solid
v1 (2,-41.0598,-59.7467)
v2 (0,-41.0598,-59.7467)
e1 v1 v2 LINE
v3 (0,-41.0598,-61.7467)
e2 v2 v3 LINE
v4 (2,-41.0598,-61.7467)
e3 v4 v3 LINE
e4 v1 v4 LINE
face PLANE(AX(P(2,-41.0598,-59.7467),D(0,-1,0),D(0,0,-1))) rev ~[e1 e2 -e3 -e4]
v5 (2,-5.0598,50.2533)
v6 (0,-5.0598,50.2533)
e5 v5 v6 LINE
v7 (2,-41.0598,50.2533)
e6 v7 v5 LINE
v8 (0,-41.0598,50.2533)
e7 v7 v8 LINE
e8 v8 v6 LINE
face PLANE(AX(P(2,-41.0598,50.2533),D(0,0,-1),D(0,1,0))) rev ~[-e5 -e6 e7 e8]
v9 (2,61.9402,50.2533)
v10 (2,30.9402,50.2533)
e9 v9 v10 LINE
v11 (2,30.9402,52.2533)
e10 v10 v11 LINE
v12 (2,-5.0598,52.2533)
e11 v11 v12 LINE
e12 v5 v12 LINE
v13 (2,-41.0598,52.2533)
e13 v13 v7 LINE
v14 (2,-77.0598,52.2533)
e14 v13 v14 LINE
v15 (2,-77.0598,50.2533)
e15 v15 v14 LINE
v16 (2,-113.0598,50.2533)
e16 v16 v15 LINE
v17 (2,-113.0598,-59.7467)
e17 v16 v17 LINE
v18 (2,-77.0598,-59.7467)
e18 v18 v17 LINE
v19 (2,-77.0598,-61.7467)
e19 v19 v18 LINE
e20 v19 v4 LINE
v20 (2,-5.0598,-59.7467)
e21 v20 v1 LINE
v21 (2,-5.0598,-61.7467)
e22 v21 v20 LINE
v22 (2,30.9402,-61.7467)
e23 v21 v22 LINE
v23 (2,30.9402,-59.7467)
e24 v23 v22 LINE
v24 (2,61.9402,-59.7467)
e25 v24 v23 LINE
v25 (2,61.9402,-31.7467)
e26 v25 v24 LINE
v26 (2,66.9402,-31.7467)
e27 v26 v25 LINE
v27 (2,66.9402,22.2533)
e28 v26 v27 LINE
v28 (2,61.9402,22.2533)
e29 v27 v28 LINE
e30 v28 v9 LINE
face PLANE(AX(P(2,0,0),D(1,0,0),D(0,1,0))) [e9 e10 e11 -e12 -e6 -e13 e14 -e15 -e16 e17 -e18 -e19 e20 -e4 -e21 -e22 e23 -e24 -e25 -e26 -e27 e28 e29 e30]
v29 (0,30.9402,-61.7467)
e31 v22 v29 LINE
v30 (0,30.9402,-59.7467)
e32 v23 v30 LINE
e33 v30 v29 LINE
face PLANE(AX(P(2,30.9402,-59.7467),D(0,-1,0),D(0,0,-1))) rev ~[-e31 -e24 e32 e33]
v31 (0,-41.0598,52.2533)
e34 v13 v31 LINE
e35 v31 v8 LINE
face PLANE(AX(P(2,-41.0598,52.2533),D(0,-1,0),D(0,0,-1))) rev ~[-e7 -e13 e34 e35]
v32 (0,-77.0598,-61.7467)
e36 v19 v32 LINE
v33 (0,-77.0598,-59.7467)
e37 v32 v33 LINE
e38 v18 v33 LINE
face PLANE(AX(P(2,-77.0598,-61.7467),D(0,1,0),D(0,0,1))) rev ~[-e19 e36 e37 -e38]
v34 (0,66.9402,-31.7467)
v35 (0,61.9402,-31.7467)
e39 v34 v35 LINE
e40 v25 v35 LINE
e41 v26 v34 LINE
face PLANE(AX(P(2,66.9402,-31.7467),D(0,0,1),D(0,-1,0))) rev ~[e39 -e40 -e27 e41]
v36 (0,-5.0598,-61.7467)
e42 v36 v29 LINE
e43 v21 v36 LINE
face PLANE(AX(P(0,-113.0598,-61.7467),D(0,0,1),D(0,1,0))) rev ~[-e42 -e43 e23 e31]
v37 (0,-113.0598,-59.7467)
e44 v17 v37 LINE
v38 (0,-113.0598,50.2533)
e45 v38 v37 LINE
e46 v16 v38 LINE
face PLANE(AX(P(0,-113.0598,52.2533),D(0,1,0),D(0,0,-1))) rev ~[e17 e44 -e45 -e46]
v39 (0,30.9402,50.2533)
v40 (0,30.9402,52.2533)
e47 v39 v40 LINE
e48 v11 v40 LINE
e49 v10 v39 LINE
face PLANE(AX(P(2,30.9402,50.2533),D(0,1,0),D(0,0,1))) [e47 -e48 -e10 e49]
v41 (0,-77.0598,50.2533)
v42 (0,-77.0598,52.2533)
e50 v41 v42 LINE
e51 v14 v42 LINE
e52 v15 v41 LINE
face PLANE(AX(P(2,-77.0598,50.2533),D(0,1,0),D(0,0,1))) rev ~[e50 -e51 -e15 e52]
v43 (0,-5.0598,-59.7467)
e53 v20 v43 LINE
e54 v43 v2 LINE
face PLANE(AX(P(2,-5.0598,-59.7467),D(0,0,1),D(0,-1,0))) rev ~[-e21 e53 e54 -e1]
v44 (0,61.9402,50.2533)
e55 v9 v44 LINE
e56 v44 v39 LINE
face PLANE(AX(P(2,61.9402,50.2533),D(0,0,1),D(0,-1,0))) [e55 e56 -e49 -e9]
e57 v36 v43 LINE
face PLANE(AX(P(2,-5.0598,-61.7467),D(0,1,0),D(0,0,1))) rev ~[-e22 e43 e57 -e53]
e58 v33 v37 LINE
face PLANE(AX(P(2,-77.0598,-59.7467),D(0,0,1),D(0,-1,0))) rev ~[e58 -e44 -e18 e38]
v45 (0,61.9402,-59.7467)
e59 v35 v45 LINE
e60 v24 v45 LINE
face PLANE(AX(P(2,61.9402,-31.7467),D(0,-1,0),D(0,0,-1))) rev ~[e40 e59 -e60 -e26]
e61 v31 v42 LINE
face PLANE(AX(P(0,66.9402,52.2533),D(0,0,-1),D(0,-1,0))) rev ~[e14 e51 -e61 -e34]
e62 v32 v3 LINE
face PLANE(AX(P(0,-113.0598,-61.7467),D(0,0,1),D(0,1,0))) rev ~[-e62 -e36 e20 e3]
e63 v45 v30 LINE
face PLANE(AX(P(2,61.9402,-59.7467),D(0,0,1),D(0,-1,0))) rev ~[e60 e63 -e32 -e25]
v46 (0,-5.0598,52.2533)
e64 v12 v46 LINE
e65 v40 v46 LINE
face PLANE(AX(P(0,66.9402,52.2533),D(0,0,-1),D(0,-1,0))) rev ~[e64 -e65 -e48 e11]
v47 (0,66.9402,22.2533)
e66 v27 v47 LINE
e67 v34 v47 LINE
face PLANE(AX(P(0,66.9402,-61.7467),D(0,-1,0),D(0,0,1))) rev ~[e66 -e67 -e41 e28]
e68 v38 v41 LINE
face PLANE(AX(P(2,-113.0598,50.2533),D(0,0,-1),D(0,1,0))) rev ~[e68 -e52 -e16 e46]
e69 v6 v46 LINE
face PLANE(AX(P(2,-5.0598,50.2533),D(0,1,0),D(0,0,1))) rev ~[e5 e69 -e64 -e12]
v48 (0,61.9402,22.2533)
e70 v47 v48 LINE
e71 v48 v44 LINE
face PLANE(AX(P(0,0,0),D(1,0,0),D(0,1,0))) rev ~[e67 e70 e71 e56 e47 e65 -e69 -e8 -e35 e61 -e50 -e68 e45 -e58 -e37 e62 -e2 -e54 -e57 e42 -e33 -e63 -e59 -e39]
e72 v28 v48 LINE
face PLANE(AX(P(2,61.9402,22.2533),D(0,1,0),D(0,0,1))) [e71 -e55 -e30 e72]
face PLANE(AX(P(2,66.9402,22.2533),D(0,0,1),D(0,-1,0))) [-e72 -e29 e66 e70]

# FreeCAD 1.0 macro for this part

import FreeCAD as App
import Part
import Sketcher
from FreeCAD import Vector

doc = App.newDocument("Part")
body = doc.addObject("PartDesign::Body", "Body")

sketch1 = body.newObject("Sketcher::SketchObject", "Sketch")
sketch1.AttachmentSupport = (doc.getObject("YZ_Plane"), [""])
sketch1.MapMode = "FlatFace"
sketch1.addGeometry([
    Part.LineSegment(Vector(67, -62, 0), Vector(67, 52, 0)),
    Part.LineSegment(Vector(67, 52, 0), Vector(-113, 52, 0)),
    Part.LineSegment(Vector(-113, 52, 0), Vector(-113, -62, 0)),
    Part.LineSegment(Vector(-113, -62, 0), Vector(67, -62, 0)),
], False)
sketch1.addConstraint([
    Sketcher.Constraint("Coincident", 0, 2, 1, 1),
    Sketcher.Constraint("Coincident", 1, 2, 2, 1),
    Sketcher.Constraint("Coincident", 2, 2, 3, 1),
    Sketcher.Constraint("Coincident", 3, 2, 0, 1),
    Sketcher.Constraint("Vertical", 0),
    Sketcher.Constraint("Horizontal", 1),
    Sketcher.Constraint("Vertical", 2),
    Sketcher.Constraint("Horizontal", 3),
    Sketcher.Constraint("DistanceX", 1, 2, 1, 1, 180.0),
    Sketcher.Constraint("DistanceY", 0, 1, 0, 2, 114.0),
    Sketcher.Constraint("DistanceX", -1, 1, 0, 2, 66.9402),
    Sketcher.Constraint("DistanceY", -1, 1, 0, 2, 52.2533),
])
pad1 = body.newObject("PartDesign::Pad", "Pad")
pad1.Profile = sketch1
pad1.Length = 2

sketch2 = body.newObject("Sketcher::SketchObject", "Sketch001")
sketch2.AttachmentSupport = (doc.getObject("YZ_Plane"), [""])
sketch2.MapMode = "FlatFace"
sketch2.AttachmentOffset = App.Placement(Vector(0, 0, 2), App.Rotation())
sketch2.addGeometry([
    Part.LineSegment(Vector(62, -62, 0), Vector(67, -62, 0)),
    Part.LineSegment(Vector(67, -62, 0), Vector(67, -32, 0)),
    Part.LineSegment(Vector(67, -32, 0), Vector(62, -32, 0)),
    Part.LineSegment(Vector(62, -32, 0), Vector(62, -62, 0)),
    Part.LineSegment(Vector(62, 22, 0), Vector(67, 22, 0)),
    Part.LineSegment(Vector(67, 22, 0), Vector(67, 52, 0)),
    Part.LineSegment(Vector(67, 52, 0), Vector(62, 52, 0)),
    Part.LineSegment(Vector(62, 52, 0), Vector(62, 22, 0)),
], False)
sketch2.addConstraint([
    Sketcher.Constraint("Coincident", 0, 2, 1, 1),
    Sketcher.Constraint("Coincident", 1, 2, 2, 1),
    Sketcher.Constraint("Coincident", 2, 2, 3, 1),
    Sketcher.Constraint("Coincident", 3, 2, 0, 1),
    Sketcher.Constraint("Coincident", 4, 2, 5, 1),
    Sketcher.Constraint("Coincident", 5, 2, 6, 1),
    Sketcher.Constraint("Coincident", 6, 2, 7, 1),
    Sketcher.Constraint("Coincident", 7, 2, 4, 1),
    Sketcher.Constraint("Horizontal", 0),
    Sketcher.Constraint("Vertical", 1),
    Sketcher.Constraint("Horizontal", 2),
    Sketcher.Constraint("Vertical", 3),
    Sketcher.Constraint("Horizontal", 4),
    Sketcher.Constraint("Vertical", 5),
    Sketcher.Constraint("Horizontal", 6),
    Sketcher.Constraint("Vertical", 7),
    Sketcher.Constraint("Vertical", 1, 2, 4, 2),
    Sketcher.Constraint("Vertical", 3, 2, 6, 2),
    Sketcher.Constraint("Equal", 3, 5),
    Sketcher.Constraint("DistanceX", 0, 1, 0, 2, 5.0),
    Sketcher.Constraint("DistanceY", 1, 1, 1, 2, 30.0),
    Sketcher.Constraint("DistanceY", 1, 2, 4, 2, 54.0),
    Sketcher.Constraint("DistanceX", -1, 1, 0, 2, 66.9402),
    Sketcher.Constraint("DistanceY", 0, 2, -1, 1, 61.7467),
])
pocket1 = body.newObject("PartDesign::Pocket", "Pocket")
pocket1.Profile = sketch2
pocket1.Length = 2

sketch3 = body.newObject("Sketcher::SketchObject", "Sketch002")
sketch3.AttachmentSupport = (doc.getObject("YZ_Plane"), [""])
sketch3.MapMode = "FlatFace"
sketch3.AttachmentOffset = App.Placement(Vector(0, 0, 2), App.Rotation())
sketch3.addGeometry([
    Part.LineSegment(Vector(61.9, 50.3, 0), Vector(61.9, 52.3, 0)),
    Part.LineSegment(Vector(61.9, 52.3, 0), Vector(30.9, 52.3, 0)),
    Part.LineSegment(Vector(30.9, 52.3, 0), Vector(30.9, 50.3, 0)),
    Part.LineSegment(Vector(30.9, 50.3, 0), Vector(61.9, 50.3, 0)),
    Part.LineSegment(Vector(30.9, -59.7, 0), Vector(30.9, -61.7, 0)),
    Part.LineSegment(Vector(30.9, -61.7, 0), Vector(61.9, -61.7, 0)),
    Part.LineSegment(Vector(61.9, -61.7, 0), Vector(61.9, -59.7, 0)),
    Part.LineSegment(Vector(61.9, -59.7, 0), Vector(30.9, -59.7, 0)),
    Part.LineSegment(Vector(-41.1, -59.7, 0), Vector(-41.1, -61.7, 0)),
    Part.LineSegment(Vector(-41.1, -61.7, 0), Vector(-5.1, -61.7, 0)),
    Part.LineSegment(Vector(-5.1, -61.7, 0), Vector(-5.1, -59.7, 0)),
    Part.LineSegment(Vector(-5.1, -59.7, 0), Vector(-41.1, -59.7, 0)),
    Part.LineSegment(Vector(-77.1, -59.7, 0), Vector(-113.1, -59.7, 0)),
    Part.LineSegment(Vector(-113.1, -59.7, 0), Vector(-113.1, -61.7, 0)),
    Part.LineSegment(Vector(-113.1, -61.7, 0), Vector(-77.1, -61.7, 0)),
    Part.LineSegment(Vector(-77.1, -61.7, 0), Vector(-77.1, -59.7, 0)),
    Part.LineSegment(Vector(-77.1, 50.3, 0), Vector(-77.1, 52.3, 0)),
    Part.LineSegment(Vector(-77.1, 52.3, 0), Vector(-113.1, 52.3, 0)),
    Part.LineSegment(Vector(-113.1, 52.3, 0), Vector(-113.1, 50.3, 0)),
    Part.LineSegment(Vector(-113.1, 50.3, 0), Vector(-77.1, 50.3, 0)),
    Part.LineSegment(Vector(-5.1, 50.3, 0), Vector(-5.1, 52.3, 0)),
    Part.LineSegment(Vector(-5.1, 52.3, 0), Vector(-41.1, 52.3, 0)),
    Part.LineSegment(Vector(-41.1, 52.3, 0), Vector(-41.1, 50.3, 0)),
    Part.LineSegment(Vector(-41.1, 50.3, 0), Vector(-5.1, 50.3, 0)),
], False)
sketch3.addConstraint([
    Sketcher.Constraint("Coincident", 0, 2, 1, 1),
    Sketcher.Constraint("Coincident", 1, 2, 2, 1),
    Sketcher.Constraint("Coincident", 2, 2, 3, 1),
    Sketcher.Constraint("Coincident", 3, 2, 0, 1),
    Sketcher.Constraint("Coincident", 4, 2, 5, 1),
    Sketcher.Constraint("Coincident", 5, 2, 6, 1),
    Sketcher.Constraint("Coincident", 6, 2, 7, 1),
    Sketcher.Constraint("Coincident", 7, 2, 4, 1),
    Sketcher.Constraint("Coincident", 8, 2, 9, 1),
    Sketcher.Constraint("Coincident", 9, 2, 10, 1),
    Sketcher.Constraint("Coincident", 10, 2, 11, 1),
    Sketcher.Constraint("Coincident", 11, 2, 8, 1),
    Sketcher.Constraint("Coincident", 12, 2, 13, 1),
    Sketcher.Constraint("Coincident", 13, 2, 14, 1),
    Sketcher.Constraint("Coincident", 14, 2, 15, 1),
    Sketcher.Constraint("Coincident", 15, 2, 12, 1),
    Sketcher.Constraint("Coincident", 16, 2, 17, 1),
    Sketcher.Constraint("Coincident", 17, 2, 18, 1),
    Sketcher.Constraint("Coincident", 18, 2, 19, 1),
    Sketcher.Constraint("Coincident", 19, 2, 16, 1),
    Sketcher.Constraint("Coincident", 20, 2, 21, 1),
    Sketcher.Constraint("Coincident", 21, 2, 22, 1),
    Sketcher.Constraint("Coincident", 22, 2, 23, 1),
    Sketcher.Constraint("Coincident", 23, 2, 20, 1),
    Sketcher.Constraint("Vertical", 0),
    Sketcher.Constraint("Horizontal", 1),
    Sketcher.Constraint("Vertical", 2),
    Sketcher.Constraint("Horizontal", 3),
    Sketcher.Constraint("Vertical", 4),
    Sketcher.Constraint("Horizontal", 5),
    Sketcher.Constraint("Vertical", 6),
    Sketcher.Constraint("Horizontal", 7),
    Sketcher.Constraint("Vertical", 8),
    Sketcher.Constraint("Horizontal", 9),
    Sketcher.Constraint("Vertical", 10),
    Sketcher.Constraint("Horizontal", 11),
    Sketcher.Constraint("Horizontal", 12),
    Sketcher.Constraint("Vertical", 13),
    Sketcher.Constraint("Horizontal", 14),
    Sketcher.Constraint("Vertical", 15),
    Sketcher.Constraint("Vertical", 16),
    Sketcher.Constraint("Horizontal", 17),
    Sketcher.Constraint("Vertical", 18),
    Sketcher.Constraint("Horizontal", 19),
    Sketcher.Constraint("Vertical", 20),
    Sketcher.Constraint("Horizontal", 21),
    Sketcher.Constraint("Vertical", 22),
    Sketcher.Constraint("Horizontal", 23),
    Sketcher.Constraint("Horizontal", 5, 2, 8, 2),
    Sketcher.Constraint("Horizontal", 7, 2, 10, 2),
    Sketcher.Constraint("Horizontal", 11, 2, 12, 2),
    Sketcher.Constraint("Horizontal", 9, 2, 13, 2),
    Sketcher.Constraint("Horizontal", 1, 2, 16, 2),
    Sketcher.Constraint("Horizontal", 3, 2, 18, 2),
    Sketcher.Constraint("Horizontal", 17, 2, 20, 2),
    Sketcher.Constraint("Horizontal", 19, 2, 22, 2),
    Sketcher.Constraint("Vertical", 2, 2, 4, 2),
    Sketcher.Constraint("Vertical", 3, 2, 5, 2),
    Sketcher.Constraint("Vertical", 15, 2, 16, 2),
    Sketcher.Constraint("Vertical", 13, 2, 17, 2),
    Sketcher.Constraint("Vertical", 10, 2, 20, 2),
    Sketcher.Constraint("Vertical", 11, 2, 21, 2),
    Sketcher.Constraint("Equal", 11, 12),
    Sketcher.Constraint("Equal", 2, 4),
    Sketcher.Constraint("DistanceX", 9, 1, 9, 2, 36.0),
    Sketcher.Constraint("DistanceY", 0, 1, 0, 2, 2.0),
    Sketcher.Constraint("DistanceX", 9, 2, 4, 2, 36.0),
    Sketcher.Constraint("DistanceX", 14, 2, 8, 2, 36.0),
    Sketcher.Constraint("DistanceX", 1, 2, 1, 1, 31.0),
    Sketcher.Constraint("DistanceY", 4, 2, 2, 2, 112.0),
    Sketcher.Constraint("DistanceX", -1, 1, 0, 2, 61.9402),
    Sketcher.Constraint("DistanceY", -1, 1, 0, 2, 52.2533),
])
pocket2 = body.newObject("PartDesign::Pocket", "Pocket001")
pocket2.Profile = sketch3
pocket2.Length = 2

doc.recompute()
